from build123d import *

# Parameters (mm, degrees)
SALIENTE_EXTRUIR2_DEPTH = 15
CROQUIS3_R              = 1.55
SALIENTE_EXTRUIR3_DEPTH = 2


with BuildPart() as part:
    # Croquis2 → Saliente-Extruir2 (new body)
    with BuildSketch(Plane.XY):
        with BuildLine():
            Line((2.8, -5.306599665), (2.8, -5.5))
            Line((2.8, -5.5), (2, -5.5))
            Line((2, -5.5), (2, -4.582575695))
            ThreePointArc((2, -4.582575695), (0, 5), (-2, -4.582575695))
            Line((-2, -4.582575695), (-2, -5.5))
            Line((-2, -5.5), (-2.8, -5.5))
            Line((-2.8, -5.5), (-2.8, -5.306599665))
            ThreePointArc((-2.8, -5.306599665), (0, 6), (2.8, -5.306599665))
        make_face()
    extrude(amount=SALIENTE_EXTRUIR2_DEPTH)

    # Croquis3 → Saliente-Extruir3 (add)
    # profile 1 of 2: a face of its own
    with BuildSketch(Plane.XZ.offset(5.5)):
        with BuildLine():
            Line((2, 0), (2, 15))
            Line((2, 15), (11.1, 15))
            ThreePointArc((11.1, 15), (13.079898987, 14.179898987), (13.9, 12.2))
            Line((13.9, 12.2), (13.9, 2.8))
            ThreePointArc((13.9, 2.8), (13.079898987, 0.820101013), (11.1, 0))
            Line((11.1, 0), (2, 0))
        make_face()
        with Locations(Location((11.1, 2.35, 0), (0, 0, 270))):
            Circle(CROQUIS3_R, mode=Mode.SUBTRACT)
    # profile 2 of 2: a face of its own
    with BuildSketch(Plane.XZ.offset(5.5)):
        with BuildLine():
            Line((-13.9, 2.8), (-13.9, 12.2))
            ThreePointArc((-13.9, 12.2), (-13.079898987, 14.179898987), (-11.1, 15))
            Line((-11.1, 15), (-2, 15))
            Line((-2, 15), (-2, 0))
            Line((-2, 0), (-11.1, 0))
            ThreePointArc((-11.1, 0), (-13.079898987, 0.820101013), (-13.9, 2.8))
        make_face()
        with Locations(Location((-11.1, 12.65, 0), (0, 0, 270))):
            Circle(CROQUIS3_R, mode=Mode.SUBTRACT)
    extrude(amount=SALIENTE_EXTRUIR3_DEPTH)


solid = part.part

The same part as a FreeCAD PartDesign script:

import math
import FreeCAD as App
import Part
import Sketcher

V = App.Vector

doc = App.newDocument("Part")
body = doc.addObject("PartDesign::Body", "Body")

# Sketch on XY plane
sketch1 = doc.addObject("Sketcher::SketchObject", "Sketch")
body.addObject(sketch1)
sketch1.AttachmentSupport = (doc.XY_Plane, [""])
sketch1.MapMode = "FlatFace"
sketch1.addGeometry(Part.LineSegment(V(2.8, -5.5, 0), V(2.8, -5.31, 0)), False)
sketch1.addGeometry(Part.ArcOfCircle(Part.Circle(V(0, 0, 0), V(0, 0, 1), 6), math.radians(-62), math.radians(242)), False)
sketch1.addGeometry(Part.LineSegment(V(-2.8, -5.31, 0), V(-2.8, -5.5, 0)), False)
sketch1.addGeometry(Part.LineSegment(V(-2.8, -5.5, 0), V(-2, -5.5, 0)), False)
sketch1.addGeometry(Part.LineSegment(V(-2, -5.5, 0), V(-2, -4.58, 0)), False)
sketch1.addGeometry(Part.ArcOfCircle(Part.Circle(V(0, 0, 0), V(0, 0, 1), 5), math.radians(-66), math.radians(246)), False)
sketch1.addGeometry(Part.LineSegment(V(2, -4.58, 0), V(2, -5.5, 0)), False)
sketch1.addGeometry(Part.LineSegment(V(2, -5.5, 0), V(2.8, -5.5, 0)), False)
sketch1.addConstraint(Sketcher.Constraint("Coincident", 0, 2, 1, 1))
sketch1.addConstraint(Sketcher.Constraint("Coincident", 1, 2, 2, 1))
sketch1.addConstraint(Sketcher.Constraint("Coincident", 2, 2, 3, 1))
sketch1.addConstraint(Sketcher.Constraint("Coincident", 3, 2, 4, 1))
sketch1.addConstraint(Sketcher.Constraint("Coincident", 4, 2, 5, 2))
sketch1.addConstraint(Sketcher.Constraint("Coincident", 5, 1, 6, 1))
sketch1.addConstraint(Sketcher.Constraint("Coincident", 6, 2, 7, 1))
sketch1.addConstraint(Sketcher.Constraint("Coincident", 7, 2, 0, 1))
sketch1.addConstraint(Sketcher.Constraint("Vertical", 0))
sketch1.addConstraint(Sketcher.Constraint("Vertical", 2))
sketch1.addConstraint(Sketcher.Constraint("Horizontal", 3))
sketch1.addConstraint(Sketcher.Constraint("Vertical", 4))
sketch1.addConstraint(Sketcher.Constraint("Vertical", 6))
sketch1.addConstraint(Sketcher.Constraint("Horizontal", 7))
sketch1.addConstraint(Sketcher.Constraint("Coincident", 1, 3, -1, 1))
sketch1.addConstraint(Sketcher.Constraint("Coincident", 5, 3, -1, 1))
sketch1.addConstraint(Sketcher.Constraint("Symmetric", 3, 2, 6, 2, -2))
sketch1.addConstraint(Sketcher.Constraint("Horizontal", 0, 2, 1, 2))
sketch1.addConstraint(Sketcher.Constraint("Radius", 1, 6.0))
sketch1.addConstraint(Sketcher.Constraint("Radius", 5, 5.0))
sketch1.addConstraint(Sketcher.Constraint("DistanceX", 3, 1, 3, 2, 0.8))
sketch1.addConstraint(Sketcher.Constraint("DistanceX", 3, 2, -1, 1, 2.0))
sketch1.addConstraint(Sketcher.Constraint("DistanceY", 2, 2, -1, 1, 5.5))
pad1 = doc.addObject("PartDesign::Pad", "Pad")
body.addObject(pad1)
pad1.Profile = sketch1
pad1.Length = 15

# Sketch on XZ plane
sketch2 = doc.addObject("Sketcher::SketchObject", "Sketch001")
body.addObject(sketch2)
sketch2.AttachmentSupport = (doc.XZ_Plane, [""])
sketch2.MapMode = "FlatFace"
sketch2.AttachmentOffset = App.Placement(V(0, 0, 5.5), App.Rotation())
sketch2.addGeometry(Part.LineSegment(V(2, 15, 0), V(2, 0, 0)), False)
sketch2.addGeometry(Part.LineSegment(V(2, 0, 0), V(11.1, 0, 0)), False)
sketch2.addGeometry(Part.ArcOfCircle(Part.Circle(V(11.1, 2.8, 0), V(0, 0, 1), 2.8), math.radians(-90), math.radians(0)), False)
sketch2.addGeometry(Part.LineSegment(V(13.9, 2.8, 0), V(13.9, 12.2, 0)), False)
sketch2.addGeometry(Part.ArcOfCircle(Part.Circle(V(11.1, 12.2, 0), V(0, 0, 1), 2.8), math.radians(0), math.radians(90)), False)
sketch2.addGeometry(Part.LineSegment(V(11.1, 15, 0), V(2, 15, 0)), False)
sketch2.addGeometry(Part.Circle(V(11.1, 2.4, 0), V(0, 0, 1), 1.6), False)
sketch2.addGeometry(Part.LineSegment(V(-13.9, 12.2, 0), V(-13.9, 2.8, 0)), False)
sketch2.addGeometry(Part.ArcOfCircle(Part.Circle(V(-11.1, 2.8, 0), V(0, 0, 1), 2.8), math.radians(-180), math.radians(-90)), False)
sketch2.addGeometry(Part.LineSegment(V(-11.1, 0, 0), V(-2, 0, 0)), False)
sketch2.addGeometry(Part.LineSegment(V(-2, 0, 0), V(-2, 15, 0)), False)
sketch2.addGeometry(Part.LineSegment(V(-2, 15, 0), V(-11.1, 15, 0)), False)
sketch2.addGeometry(Part.ArcOfCircle(Part.Circle(V(-11.1, 12.2, 0), V(0, 0, 1), 2.8), math.radians(90), math.radians(180)), False)
sketch2.addGeometry(Part.Circle(V(-11.1, 12.7, 0), V(0, 0, 1), 1.6), False)
sketch2.addConstraint(Sketcher.Constraint("Coincident", 0, 2, 1, 1))
sketch2.addConstraint(Sketcher.Constraint("Tangent", 1, 2, 2, 1))
sketch2.addConstraint(Sketcher.Constraint("Tangent", 2, 2, 3, 1))
sketch2.addConstraint(Sketcher.Constraint("Tangent", 3, 2, 4, 1))
sketch2.addConstraint(Sketcher.Constraint("Tangent", 4, 2, 5, 1))
sketch2.addConstraint(Sketcher.Constraint("Coincident", 5, 2, 0, 1))
sketch2.addConstraint(Sketcher.Constraint("Tangent", 7, 2, 8, 1))
sketch2.addConstraint(Sketcher.Constraint("Tangent", 8, 2, 9, 1))
sketch2.addConstraint(Sketcher.Constraint("Coincident", 9, 2, 10, 1))
sketch2.addConstraint(Sketcher.Constraint("Coincident", 10, 2, 11, 1))
sketch2.addConstraint(Sketcher.Constraint("Tangent", 11, 2, 12, 1))
sketch2.addConstraint(Sketcher.Constraint("Tangent", 12, 2, 7, 1))
sketch2.addConstraint(Sketcher.Constraint("Vertical", 0))
sketch2.addConstraint(Sketcher.Constraint("Horizontal", 1))
sketch2.addConstraint(Sketcher.Constraint("Vertical", 3))
sketch2.addConstraint(Sketcher.Constraint("Horizontal", 5))
sketch2.addConstraint(Sketcher.Constraint("Vertical", 7))
sketch2.addConstraint(Sketcher.Constraint("Horizontal", 9))
sketch2.addConstraint(Sketcher.Constraint("Vertical", 10))
sketch2.addConstraint(Sketcher.Constraint("Horizontal", 11))
sketch2.addConstraint(Sketcher.Constraint("Equal", 2, 4))
sketch2.addConstraint(Sketcher.Constraint("Equal", 4, 8))
sketch2.addConstraint(Sketcher.Constraint("Equal", 8, 12))
sketch2.addConstraint(Sketcher.Constraint("Equal", 6, 13))
sketch2.addConstraint(Sketcher.Constraint("Symmetric", 1, 2, 8, 2, -1, 1))
sketch2.addConstraint(Sketcher.Constraint("Symmetric", 0, 2, 9, 2, -2))
sketch2.addConstraint(Sketcher.Constraint("Horizontal", 4, 3, 12, 3))
sketch2.addConstraint(Sketcher.Constraint("Vertical", 4, 3, 6, 3))
sketch2.addConstraint(Sketcher.Constraint("Vertical", 12, 3, 13, 3))
sketch2.addConstraint(Sketcher.Constraint("Diameter", 6, 3.1))
sketch2.addConstraint(Sketcher.Constraint("Radius", 2, 2.8))
sketch2.addConstraint(Sketcher.Constraint("DistanceY", 0, 2, 0, 1, 15.0))
sketch2.addConstraint(Sketcher.Constraint("DistanceX", 1, 1, 1, 2, 9.1))
sketch2.addConstraint(Sketcher.Constraint("DistanceX", -1, 1, 0, 2, 2.0))
sketch2.addConstraint(Sketcher.Constraint("DistanceY", 6, 3, 13, 3, 10.3))
sketch2.addConstraint(Sketcher.Constraint("DistanceY", -1, 1, 6, 3, 2.35))
pad2 = doc.addObject("PartDesign::Pad", "Pad001")
body.addObject(pad2)
pad2.Profile = sketch2
pad2.Length = 2

doc.recompute()
